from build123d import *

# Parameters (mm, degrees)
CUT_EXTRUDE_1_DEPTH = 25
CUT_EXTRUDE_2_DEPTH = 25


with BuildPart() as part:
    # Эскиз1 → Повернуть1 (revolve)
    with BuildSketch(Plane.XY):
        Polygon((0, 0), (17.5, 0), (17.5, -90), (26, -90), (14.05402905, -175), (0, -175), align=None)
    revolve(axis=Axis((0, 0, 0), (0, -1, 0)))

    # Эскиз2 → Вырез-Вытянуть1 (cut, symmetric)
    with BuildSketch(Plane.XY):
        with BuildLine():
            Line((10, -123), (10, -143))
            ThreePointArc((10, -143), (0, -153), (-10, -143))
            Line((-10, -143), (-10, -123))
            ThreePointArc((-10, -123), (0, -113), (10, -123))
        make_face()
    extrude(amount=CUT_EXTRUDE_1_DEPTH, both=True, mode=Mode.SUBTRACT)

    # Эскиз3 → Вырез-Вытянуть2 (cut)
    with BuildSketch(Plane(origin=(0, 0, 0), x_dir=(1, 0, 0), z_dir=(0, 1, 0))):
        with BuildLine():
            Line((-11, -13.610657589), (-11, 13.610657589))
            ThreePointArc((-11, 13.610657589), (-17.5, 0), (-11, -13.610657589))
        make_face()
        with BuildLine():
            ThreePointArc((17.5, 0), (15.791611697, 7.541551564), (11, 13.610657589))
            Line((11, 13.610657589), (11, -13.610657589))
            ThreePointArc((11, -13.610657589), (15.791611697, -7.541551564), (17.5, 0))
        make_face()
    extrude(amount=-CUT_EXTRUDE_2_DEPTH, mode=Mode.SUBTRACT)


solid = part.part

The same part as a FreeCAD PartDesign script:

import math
import FreeCAD as App
import Part
import Sketcher

V = App.Vector
Q = App.Units.Quantity


def add_polygon(sketch, points):
    """Adds a closed chain of lines whose ends are joined by coincident constraints."""
    first, n = sketch.GeometryCount, len(points)
    for a, b in zip(points, points[1:] + points[:1]):
        sketch.addGeometry(Part.LineSegment(App.Vector(*a, 0), App.Vector(*b, 0)), False)
    for i in range(n):
        sketch.addConstraint(Sketcher.Constraint("Coincident", first + i, 2, first + (i + 1) % n, 1))

doc = App.newDocument("Part")
body = doc.addObject("PartDesign::Body", "Body")

sketch1 = body.newObject("Sketcher::SketchObject", "Sketch")
sketch1.AttachmentSupport = (doc.getObject("XY_Plane"), [""])
sketch1.MapMode = "FlatFace"
add_polygon(sketch1, [(17.5, 0), (0, 0), (0, -175), (14.054029, -175), (26, -90), (17.5, -90)])
sketch1.addConstraint(Sketcher.Constraint("Horizontal", 0))
sketch1.addConstraint(Sketcher.Constraint("Vertical", 1))
sketch1.addConstraint(Sketcher.Constraint("Horizontal", 2))
sketch1.addConstraint(Sketcher.Constraint("Horizontal", 4))
sketch1.addConstraint(Sketcher.Constraint("Vertical", 5))
sketch1.addConstraint(Sketcher.Constraint("Coincident", 0, 2, -1, 1))
sketch1.addConstraint(Sketcher.Constraint("DistanceY", 1, 2, 1, 1, 175.0))
sketch1.addConstraint(Sketcher.Constraint("DistanceY", 5, 1, 5, 2, 90.0))
sketch1.addConstraint(Sketcher.Constraint("Angle", 3, Q("82 deg")))
sketch1.addConstraint(Sketcher.Constraint("DistanceX", 0, 2, 0, 1, 17.5))
sketch1.addConstraint(Sketcher.Constraint("DistanceX", 4, 2, 4, 1, 8.5))
revolution = body.newObject("PartDesign::Revolution", "Revolution")
revolution.Profile = sketch1
revolution.ReferenceAxis = (sketch1, ["V_Axis"])
revolution.Angle = 360

sketch2 = body.newObject("Sketcher::SketchObject", "Sketch001")
sketch2.AttachmentSupport = (doc.getObject("XY_Plane"), [""])
sketch2.MapMode = "FlatFace"
sketch2.addGeometry(Part.LineSegment(V(10, -143, 0), V(10, -123, 0)), False)
sketch2.addGeometry(Part.ArcOfCircle(Part.Circle(V(0, -123, 0), V(0, 0, 1), 10), math.radians(0), math.radians(180)), False)
sketch2.addGeometry(Part.LineSegment(V(-10, -123, 0), V(-10, -143, 0)), False)
sketch2.addGeometry(Part.ArcOfCircle(Part.Circle(V(0, -143, 0), V(0, 0, 1), 10), math.radians(180), math.radians(360)), False)
sketch2.addConstraint(Sketcher.Constraint("Tangent", 0, 2, 1, 1))
sketch2.addConstraint(Sketcher.Constraint("Tangent", 1, 2, 2, 1))
sketch2.addConstraint(Sketcher.Constraint("Tangent", 2, 2, 3, 1))
sketch2.addConstraint(Sketcher.Constraint("Tangent", 3, 2, 0, 1))
sketch2.addConstraint(Sketcher.Constraint("Vertical", 0))
sketch2.addConstraint(Sketcher.Constraint("Vertical", 2))
sketch2.addConstraint(Sketcher.Constraint("PointOnObject", 1, 3, -2))
sketch2.addConstraint(Sketcher.Constraint("Radius", 1, 10.0))
sketch2.addConstraint(Sketcher.Constraint("DistanceY", 0, 1, 0, 2, 20.0))
sketch2.addConstraint(Sketcher.Constraint("DistanceY", 1, 3, -1, 1, 123.0))
pocket1 = body.newObject("PartDesign::Pocket", "Pocket")
pocket1.Profile = sketch2
pocket1.Length = 50
pocket1.Midplane = True

sketch3 = body.newObject("Sketcher::SketchObject", "Sketch002")
sketch3.AttachmentSupport = (doc.getObject("XZ_Plane"), [""])
sketch3.MapMode = "FlatFace"
sketch3.addGeometry(Part.LineSegment(V(-11, 13.610658, 0), V(-11, -13.610658, 0)), False)
sketch3.addGeometry(Part.ArcOfCircle(Part.Circle(V(0, 0, 0), V(0, 0, 1), 17.5), math.radians(128.944804), math.radians(231.055196)), False)
sketch3.addGeometry(Part.ArcOfCircle(Part.Circle(V(0, 0, 0), V(0, 0, 1), 17.5), math.radians(-51.055196), math.radians(0)), False)
sketch3.addGeometry(Part.LineSegment(V(11, -13.610658, 0), V(11, 13.610658, 0)), False)
sketch3.addGeometry(Part.ArcOfCircle(Part.Circle(V(0, 0, 0), V(0, 0, 1), 17.5), math.radians(0), math.radians(51.055196)), False)
sketch3.addConstraint(Sketcher.Constraint("Coincident", 0, 1, 1, 1))
sketch3.addConstraint(Sketcher.Constraint("Coincident", 1, 2, 0, 2))
sketch3.addConstraint(Sketcher.Constraint("Coincident", 2, 1, 3, 1))
sketch3.addConstraint(Sketcher.Constraint("Coincident", 3, 2, 4, 2))
sketch3.addConstraint(Sketcher.Constraint("Tangent", 4, 1, 2, 2))
sketch3.addConstraint(Sketcher.Constraint("Vertical", 0))
sketch3.addConstraint(Sketcher.Constraint("Vertical", 3))
sketch3.addConstraint(Sketcher.Constraint("Coincident", 1, 3, -1, 1))
sketch3.addConstraint(Sketcher.Constraint("Coincident", 2, 3, -1, 1))
sketch3.addConstraint(Sketcher.Constraint("Equal", 1, 2))
sketch3.addConstraint(Sketcher.Constraint("Equal", 2, 4))
sketch3.addConstraint(Sketcher.Constraint("PointOnObject", 4, 1, -1))
sketch3.addConstraint(Sketcher.Constraint("Horizontal", 1, 2, 2, 1))
sketch3.addConstraint(Sketcher.Constraint("Radius", 1, 17.5))
sketch3.addConstraint(Sketcher.Constraint("DistanceX", 0, 1, -1, 1, 11.0))
pocket2 = body.newObject("PartDesign::Pocket", "Pocket001")
pocket2.Profile = sketch3
pocket2.Length = 25
pocket2.Reversed = True

doc.recompute()
